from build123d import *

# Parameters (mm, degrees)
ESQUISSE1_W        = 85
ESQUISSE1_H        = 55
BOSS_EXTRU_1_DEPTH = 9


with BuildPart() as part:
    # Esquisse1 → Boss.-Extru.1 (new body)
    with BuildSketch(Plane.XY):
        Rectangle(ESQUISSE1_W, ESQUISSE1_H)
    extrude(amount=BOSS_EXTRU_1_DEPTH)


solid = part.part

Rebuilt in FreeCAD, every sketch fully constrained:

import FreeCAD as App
import Part
import Sketcher
Q = App.Units.Quantity

doc = App.newDocument("Part")
body = doc.addObject("PartDesign::Body", "Body")

# Sketch on XY plane
sketch1 = body.newObject("Sketcher::SketchObject", "Sketch")
sketch1.AttachmentSupport = (doc.getObject("XY_Plane"), [""])
sketch1.MapMode = "FlatFace"
sketch1.addGeometry([
    Part.LineSegment(App.Vector(-42, 28, 0), App.Vector(-42, -28, 0)),
    Part.LineSegment(App.Vector(-42, -28, 0), App.Vector(42, -28, 0)),
    Part.LineSegment(App.Vector(42, -28, 0), App.Vector(42, 28, 0)),
    Part.LineSegment(App.Vector(42, 28, 0), App.Vector(-42, 28, 0)),
], False)
sketch1.addConstraint([
    Sketcher.Constraint("Coincident", 0, 2, 1, 1),
    Sketcher.Constraint("Coincident", 1, 2, 2, 1),
    Sketcher.Constraint("Coincident", 2, 2, 3, 1),
    Sketcher.Constraint("Coincident", 3, 2, 0, 1),
    Sketcher.Constraint("Vertical", 0),
    Sketcher.Constraint("Horizontal", 1),
    Sketcher.Constraint("Vertical", 2),
    Sketcher.Constraint("Horizontal", 3),
    Sketcher.Constraint("Symmetric", 0, 2, 2, 2, -1, 1),
    Sketcher.Constraint("DistanceX", 1, 1, 1, 2, Q("85 mm")),
    Sketcher.Constraint("DistanceY", 0, 2, 0, 1, Q("55 mm")),
])
pad1 = body.newObject("PartDesign::Pad", "Pad")
pad1.Profile = sketch1
pad1.Length = 9

doc.recompute()
